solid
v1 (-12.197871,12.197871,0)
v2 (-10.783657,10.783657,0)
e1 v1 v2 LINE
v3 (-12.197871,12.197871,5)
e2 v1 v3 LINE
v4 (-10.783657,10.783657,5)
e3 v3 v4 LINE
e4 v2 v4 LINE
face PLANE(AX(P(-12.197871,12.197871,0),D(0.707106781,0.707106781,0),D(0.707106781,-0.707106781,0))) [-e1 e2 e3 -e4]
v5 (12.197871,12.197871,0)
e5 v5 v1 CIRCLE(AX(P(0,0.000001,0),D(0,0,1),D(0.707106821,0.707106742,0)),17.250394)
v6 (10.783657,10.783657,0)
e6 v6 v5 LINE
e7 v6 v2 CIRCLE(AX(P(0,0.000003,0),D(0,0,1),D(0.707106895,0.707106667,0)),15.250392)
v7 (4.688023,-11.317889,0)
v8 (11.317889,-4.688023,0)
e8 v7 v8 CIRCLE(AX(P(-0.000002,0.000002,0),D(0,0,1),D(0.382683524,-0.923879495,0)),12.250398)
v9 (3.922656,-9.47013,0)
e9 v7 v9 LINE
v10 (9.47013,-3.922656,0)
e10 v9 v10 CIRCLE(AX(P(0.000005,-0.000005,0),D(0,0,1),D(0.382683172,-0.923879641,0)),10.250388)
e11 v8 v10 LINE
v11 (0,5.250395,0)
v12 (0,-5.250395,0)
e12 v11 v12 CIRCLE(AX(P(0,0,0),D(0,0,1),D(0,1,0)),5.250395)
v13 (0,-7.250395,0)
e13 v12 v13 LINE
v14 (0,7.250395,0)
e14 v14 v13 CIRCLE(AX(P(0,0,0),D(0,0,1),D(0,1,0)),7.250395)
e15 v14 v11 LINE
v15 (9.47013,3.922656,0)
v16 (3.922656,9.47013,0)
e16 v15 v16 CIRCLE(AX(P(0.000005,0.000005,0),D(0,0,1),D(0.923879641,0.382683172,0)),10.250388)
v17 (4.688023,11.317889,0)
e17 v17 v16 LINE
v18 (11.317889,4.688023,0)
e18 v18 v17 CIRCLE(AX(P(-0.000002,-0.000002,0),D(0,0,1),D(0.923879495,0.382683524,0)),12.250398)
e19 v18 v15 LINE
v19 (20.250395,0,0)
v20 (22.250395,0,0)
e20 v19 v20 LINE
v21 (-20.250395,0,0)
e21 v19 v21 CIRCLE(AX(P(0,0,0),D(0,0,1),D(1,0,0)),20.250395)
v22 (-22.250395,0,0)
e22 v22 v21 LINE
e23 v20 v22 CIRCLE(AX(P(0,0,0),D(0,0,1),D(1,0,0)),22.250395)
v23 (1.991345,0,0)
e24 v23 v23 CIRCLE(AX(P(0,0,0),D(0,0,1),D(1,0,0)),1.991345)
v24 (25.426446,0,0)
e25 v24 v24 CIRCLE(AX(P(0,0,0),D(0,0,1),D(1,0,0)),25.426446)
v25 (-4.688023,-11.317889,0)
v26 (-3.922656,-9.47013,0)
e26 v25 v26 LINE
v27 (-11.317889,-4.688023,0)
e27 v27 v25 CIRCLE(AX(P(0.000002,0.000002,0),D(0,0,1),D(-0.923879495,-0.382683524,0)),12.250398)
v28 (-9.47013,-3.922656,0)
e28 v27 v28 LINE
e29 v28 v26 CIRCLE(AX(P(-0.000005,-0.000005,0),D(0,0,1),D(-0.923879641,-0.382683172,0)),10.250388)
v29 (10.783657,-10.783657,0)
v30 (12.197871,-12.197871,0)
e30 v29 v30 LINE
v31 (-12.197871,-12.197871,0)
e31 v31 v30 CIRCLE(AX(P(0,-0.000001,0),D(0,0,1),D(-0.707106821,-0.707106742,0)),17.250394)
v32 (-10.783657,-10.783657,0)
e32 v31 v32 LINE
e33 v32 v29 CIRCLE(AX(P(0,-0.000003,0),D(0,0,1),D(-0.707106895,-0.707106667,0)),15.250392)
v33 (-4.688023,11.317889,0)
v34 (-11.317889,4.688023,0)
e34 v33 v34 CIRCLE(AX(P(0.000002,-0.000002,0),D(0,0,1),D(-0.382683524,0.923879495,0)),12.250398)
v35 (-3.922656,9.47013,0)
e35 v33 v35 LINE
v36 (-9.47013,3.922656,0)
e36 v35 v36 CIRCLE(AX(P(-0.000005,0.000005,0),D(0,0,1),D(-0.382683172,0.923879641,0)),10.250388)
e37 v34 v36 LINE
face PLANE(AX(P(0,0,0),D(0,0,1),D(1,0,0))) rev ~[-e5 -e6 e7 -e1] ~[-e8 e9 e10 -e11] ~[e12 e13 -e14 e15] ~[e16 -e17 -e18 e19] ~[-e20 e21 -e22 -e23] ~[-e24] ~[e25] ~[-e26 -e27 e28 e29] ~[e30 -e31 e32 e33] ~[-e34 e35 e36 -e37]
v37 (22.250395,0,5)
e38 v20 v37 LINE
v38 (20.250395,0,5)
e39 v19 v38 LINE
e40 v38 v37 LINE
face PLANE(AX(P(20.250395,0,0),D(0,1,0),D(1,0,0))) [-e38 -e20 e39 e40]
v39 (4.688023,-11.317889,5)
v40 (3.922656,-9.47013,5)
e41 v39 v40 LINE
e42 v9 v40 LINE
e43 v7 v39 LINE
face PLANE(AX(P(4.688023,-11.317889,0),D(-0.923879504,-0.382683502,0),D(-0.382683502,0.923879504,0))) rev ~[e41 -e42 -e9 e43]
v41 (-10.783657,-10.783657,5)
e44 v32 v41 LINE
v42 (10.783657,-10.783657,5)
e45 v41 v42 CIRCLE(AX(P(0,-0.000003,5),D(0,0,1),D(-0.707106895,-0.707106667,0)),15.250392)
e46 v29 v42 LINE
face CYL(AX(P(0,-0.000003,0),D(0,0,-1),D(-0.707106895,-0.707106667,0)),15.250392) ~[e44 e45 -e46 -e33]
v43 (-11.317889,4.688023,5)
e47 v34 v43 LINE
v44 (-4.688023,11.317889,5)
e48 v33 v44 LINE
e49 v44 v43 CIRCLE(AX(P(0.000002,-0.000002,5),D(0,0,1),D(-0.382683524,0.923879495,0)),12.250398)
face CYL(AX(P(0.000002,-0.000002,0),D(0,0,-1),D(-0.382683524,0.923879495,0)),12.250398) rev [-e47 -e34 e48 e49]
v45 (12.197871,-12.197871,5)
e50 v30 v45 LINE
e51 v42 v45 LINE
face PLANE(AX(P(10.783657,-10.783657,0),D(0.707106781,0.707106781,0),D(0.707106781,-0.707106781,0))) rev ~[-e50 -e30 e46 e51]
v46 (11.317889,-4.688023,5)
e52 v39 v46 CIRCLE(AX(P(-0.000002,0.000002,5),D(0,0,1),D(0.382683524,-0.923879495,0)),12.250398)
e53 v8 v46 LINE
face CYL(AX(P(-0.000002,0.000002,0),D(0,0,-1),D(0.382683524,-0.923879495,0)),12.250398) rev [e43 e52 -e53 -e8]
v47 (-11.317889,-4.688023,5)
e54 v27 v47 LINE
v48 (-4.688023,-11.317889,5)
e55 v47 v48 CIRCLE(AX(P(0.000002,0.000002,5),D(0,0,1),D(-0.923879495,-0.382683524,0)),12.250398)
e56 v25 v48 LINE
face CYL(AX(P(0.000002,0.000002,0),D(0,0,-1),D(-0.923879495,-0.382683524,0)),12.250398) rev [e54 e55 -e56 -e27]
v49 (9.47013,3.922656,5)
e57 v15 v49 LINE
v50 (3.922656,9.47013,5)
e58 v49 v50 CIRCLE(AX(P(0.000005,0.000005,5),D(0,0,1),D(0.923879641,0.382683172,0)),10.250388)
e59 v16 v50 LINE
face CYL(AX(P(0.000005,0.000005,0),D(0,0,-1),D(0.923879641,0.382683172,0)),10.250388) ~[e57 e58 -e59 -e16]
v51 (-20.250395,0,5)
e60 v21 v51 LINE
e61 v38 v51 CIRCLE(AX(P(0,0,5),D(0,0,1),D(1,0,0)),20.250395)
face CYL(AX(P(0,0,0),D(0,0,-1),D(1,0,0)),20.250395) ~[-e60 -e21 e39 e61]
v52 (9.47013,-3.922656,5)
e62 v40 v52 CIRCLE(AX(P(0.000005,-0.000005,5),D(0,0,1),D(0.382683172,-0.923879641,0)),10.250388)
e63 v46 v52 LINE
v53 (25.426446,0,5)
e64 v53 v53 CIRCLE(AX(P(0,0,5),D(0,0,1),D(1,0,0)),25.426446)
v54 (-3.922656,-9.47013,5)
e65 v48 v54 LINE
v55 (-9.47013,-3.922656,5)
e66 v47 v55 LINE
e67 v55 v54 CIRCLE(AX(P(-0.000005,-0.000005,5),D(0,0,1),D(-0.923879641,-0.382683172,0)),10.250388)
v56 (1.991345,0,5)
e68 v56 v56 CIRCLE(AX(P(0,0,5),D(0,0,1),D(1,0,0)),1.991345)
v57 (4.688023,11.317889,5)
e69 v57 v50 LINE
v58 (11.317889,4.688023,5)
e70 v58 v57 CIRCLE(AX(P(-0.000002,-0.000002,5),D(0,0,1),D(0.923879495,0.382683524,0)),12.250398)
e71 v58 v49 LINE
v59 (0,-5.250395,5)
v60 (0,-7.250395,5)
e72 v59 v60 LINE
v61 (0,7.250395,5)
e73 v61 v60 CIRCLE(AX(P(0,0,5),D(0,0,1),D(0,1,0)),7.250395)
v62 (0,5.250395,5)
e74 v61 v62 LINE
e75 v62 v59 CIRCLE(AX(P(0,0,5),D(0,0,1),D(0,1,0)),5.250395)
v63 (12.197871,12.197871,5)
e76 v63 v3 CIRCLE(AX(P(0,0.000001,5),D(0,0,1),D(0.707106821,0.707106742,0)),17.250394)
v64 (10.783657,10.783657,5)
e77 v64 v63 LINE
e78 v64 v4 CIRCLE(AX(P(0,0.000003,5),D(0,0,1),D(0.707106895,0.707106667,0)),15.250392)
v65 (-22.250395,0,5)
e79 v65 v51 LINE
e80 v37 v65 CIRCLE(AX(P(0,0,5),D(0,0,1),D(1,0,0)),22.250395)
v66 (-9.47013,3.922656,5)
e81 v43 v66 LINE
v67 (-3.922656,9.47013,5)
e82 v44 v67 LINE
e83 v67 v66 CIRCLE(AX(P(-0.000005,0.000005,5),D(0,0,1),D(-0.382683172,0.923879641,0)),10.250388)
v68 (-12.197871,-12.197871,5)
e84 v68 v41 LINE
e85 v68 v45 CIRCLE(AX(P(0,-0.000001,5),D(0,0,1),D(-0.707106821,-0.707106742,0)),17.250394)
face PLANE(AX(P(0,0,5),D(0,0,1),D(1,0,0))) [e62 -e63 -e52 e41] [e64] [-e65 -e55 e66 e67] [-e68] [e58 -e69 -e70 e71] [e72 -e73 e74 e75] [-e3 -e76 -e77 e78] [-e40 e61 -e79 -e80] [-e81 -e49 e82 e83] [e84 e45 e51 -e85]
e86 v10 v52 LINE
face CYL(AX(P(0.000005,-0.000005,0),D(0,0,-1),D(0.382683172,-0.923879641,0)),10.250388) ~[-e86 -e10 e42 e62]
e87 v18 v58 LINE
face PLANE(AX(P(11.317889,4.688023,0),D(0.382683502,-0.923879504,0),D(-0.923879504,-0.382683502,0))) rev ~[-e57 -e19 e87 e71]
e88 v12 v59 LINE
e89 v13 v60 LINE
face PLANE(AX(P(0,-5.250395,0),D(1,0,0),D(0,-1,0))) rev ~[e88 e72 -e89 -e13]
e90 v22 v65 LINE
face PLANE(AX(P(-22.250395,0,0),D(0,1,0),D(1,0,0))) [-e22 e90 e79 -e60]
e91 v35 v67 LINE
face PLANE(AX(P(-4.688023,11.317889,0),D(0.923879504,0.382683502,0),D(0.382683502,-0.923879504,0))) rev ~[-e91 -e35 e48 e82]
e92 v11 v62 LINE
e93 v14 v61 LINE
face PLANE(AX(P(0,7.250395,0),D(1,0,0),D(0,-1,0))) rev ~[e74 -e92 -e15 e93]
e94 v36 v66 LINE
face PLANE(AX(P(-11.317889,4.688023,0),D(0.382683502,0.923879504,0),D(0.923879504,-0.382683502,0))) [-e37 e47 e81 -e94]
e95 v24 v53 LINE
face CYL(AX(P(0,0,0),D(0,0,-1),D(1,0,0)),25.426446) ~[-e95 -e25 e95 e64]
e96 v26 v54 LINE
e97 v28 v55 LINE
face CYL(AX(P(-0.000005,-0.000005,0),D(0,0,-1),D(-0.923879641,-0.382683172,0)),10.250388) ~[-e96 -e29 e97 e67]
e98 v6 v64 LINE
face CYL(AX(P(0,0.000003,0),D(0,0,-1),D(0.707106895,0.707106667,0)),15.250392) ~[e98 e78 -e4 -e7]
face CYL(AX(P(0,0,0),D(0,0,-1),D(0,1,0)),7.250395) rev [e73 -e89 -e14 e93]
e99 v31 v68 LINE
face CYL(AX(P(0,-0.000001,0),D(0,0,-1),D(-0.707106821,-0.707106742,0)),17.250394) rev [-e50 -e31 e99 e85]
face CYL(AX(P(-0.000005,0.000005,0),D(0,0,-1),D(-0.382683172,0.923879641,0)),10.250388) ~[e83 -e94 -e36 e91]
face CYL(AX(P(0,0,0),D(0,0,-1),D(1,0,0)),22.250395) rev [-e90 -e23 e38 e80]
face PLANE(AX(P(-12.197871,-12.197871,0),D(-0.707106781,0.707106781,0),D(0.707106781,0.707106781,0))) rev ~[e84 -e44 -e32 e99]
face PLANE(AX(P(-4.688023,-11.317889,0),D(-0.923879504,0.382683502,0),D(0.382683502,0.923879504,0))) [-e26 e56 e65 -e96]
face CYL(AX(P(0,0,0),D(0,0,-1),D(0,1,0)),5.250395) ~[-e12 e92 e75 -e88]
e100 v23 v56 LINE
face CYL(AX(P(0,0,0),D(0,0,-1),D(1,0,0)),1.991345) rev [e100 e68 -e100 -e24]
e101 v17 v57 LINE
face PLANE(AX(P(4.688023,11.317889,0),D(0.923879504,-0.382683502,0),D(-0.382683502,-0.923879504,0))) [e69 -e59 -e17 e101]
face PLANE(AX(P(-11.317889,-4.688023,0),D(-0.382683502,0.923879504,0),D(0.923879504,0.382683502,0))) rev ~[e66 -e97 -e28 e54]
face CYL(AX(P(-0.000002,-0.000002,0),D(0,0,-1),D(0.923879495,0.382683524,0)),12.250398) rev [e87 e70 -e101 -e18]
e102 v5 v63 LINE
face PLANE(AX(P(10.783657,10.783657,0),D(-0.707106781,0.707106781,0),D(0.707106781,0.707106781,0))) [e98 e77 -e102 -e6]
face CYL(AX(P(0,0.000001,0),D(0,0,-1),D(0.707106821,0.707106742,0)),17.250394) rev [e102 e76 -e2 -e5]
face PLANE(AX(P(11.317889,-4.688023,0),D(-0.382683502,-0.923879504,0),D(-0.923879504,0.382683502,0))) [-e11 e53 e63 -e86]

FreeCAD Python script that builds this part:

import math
import FreeCAD as App
import Part
import Sketcher

V = App.Vector
Q = App.Units.Quantity

doc = App.newDocument("Part")
body = doc.addObject("PartDesign::Body", "Body")

sketch1 = body.newObject("Sketcher::SketchObject", "Sketch")
sketch1.AttachmentSupport = (doc.getObject("XY_Plane"), [""])
sketch1.MapMode = "FlatFace"
sketch1.addGeometry([
    Part.Circle(V(0, 0, 0), V(0, 0, 1), 25.4),
    Part.ArcOfCircle(Part.Circle(V(0, 0, 0), V(0, 0, 1), 15.3), math.radians(-135), math.radians(-45)),
    Part.LineSegment(V(10.8, -10.8, 0), V(12.2, -12.2, 0)),
    Part.ArcOfCircle(Part.Circle(V(0, 0, 0), V(0, 0, 1), 17.3), math.radians(-135), math.radians(-45)),
    Part.LineSegment(V(-12.2, -12.2, 0), V(-10.8, -10.8, 0)),
    Part.ArcOfCircle(Part.Circle(V(0, 0, 0), V(0, 0, 1), 12.3), math.radians(-157), math.radians(-113)),
    Part.LineSegment(V(-11.3, -4.7, 0), V(-9.5, -3.9, 0)),
    Part.ArcOfCircle(Part.Circle(V(0, 0, 0), V(0, 0, 1), 10.3), math.radians(-158), math.radians(-112)),
    Part.LineSegment(V(-3.9, -9.5, 0), V(-4.7, -11.3, 0)),
    Part.ArcOfCircle(Part.Circle(V(0, 0, 0), V(0, 0, 1), 7.3), math.radians(90), math.radians(270)),
    Part.LineSegment(V(0, 7.3, 0), V(0, 5.3, 0)),
    Part.ArcOfCircle(Part.Circle(V(0, 0, 0), V(0, 0, 1), 5.3), math.radians(90), math.radians(270)),
    Part.LineSegment(V(0, -5.3, 0), V(0, -7.3, 0)),
    Part.Circle(V(0, 0, 0), V(0, 0, 1), 2),
    Part.LineSegment(V(4.7, -11.3, 0), V(3.9, -9.5, 0)),
    Part.ArcOfCircle(Part.Circle(V(0, 0, 0), V(0, 0, 1), 10.3), math.radians(-68), math.radians(-22)),
    Part.LineSegment(V(9.5, -3.9, 0), V(11.3, -4.7, 0)),
    Part.ArcOfCircle(Part.Circle(V(0, 0, 0), V(0, 0, 1), 12.3), math.radians(-67), math.radians(-23)),
    Part.ArcOfCircle(Part.Circle(V(0, 0, 0), V(0, 0, 1), 12.3), math.radians(113), math.radians(157)),
    Part.LineSegment(V(-4.7, 11.3, 0), V(-3.9, 9.5, 0)),
    Part.ArcOfCircle(Part.Circle(V(0, 0, 0), V(0, 0, 1), 10.3), math.radians(112), math.radians(158)),
    Part.LineSegment(V(-9.5, 3.9, 0), V(-11.3, 4.7, 0)),
    Part.LineSegment(V(-20.3, 0, 0), V(-22.3, 0, 0)),
    Part.ArcOfCircle(Part.Circle(V(0, 0, 0), V(0, 0, 1), 22.3), math.radians(0), math.radians(180)),
    Part.LineSegment(V(22.3, 0, 0), V(20.3, 0, 0)),
    Part.ArcOfCircle(Part.Circle(V(0, 0, 0), V(0, 0, 1), 20.3), math.radians(0), math.radians(180)),
    Part.ArcOfCircle(Part.Circle(V(0, 0, 0), V(0, 0, 1), 17.3), math.radians(45), math.radians(135)),
    Part.LineSegment(V(12.2, 12.2, 0), V(10.8, 10.8, 0)),
    Part.ArcOfCircle(Part.Circle(V(0, 0, 0), V(0, 0, 1), 15.3), math.radians(45), math.radians(135)),
    Part.LineSegment(V(-10.8, 10.8, 0), V(-12.2, 12.2, 0)),
    Part.ArcOfCircle(Part.Circle(V(0, 0, 0), V(0, 0, 1), 12.3), math.radians(23), math.radians(67)),
    Part.LineSegment(V(11.3, 4.7, 0), V(9.5, 3.9, 0)),
    Part.ArcOfCircle(Part.Circle(V(0, 0, 0), V(0, 0, 1), 10.3), math.radians(22), math.radians(68)),
    Part.LineSegment(V(3.9, 9.5, 0), V(4.7, 11.3, 0)),
], False)
sketch1.addConstraint([
    Sketcher.Constraint("Coincident", 1, 2, 2, 1),
    Sketcher.Constraint("Coincident", 2, 2, 3, 2),
    Sketcher.Constraint("Coincident", 3, 1, 4, 1),
    Sketcher.Constraint("Coincident", 4, 2, 1, 1),
    Sketcher.Constraint("Coincident", 5, 1, 6, 1),
    Sketcher.Constraint("Coincident", 6, 2, 7, 1),
    Sketcher.Constraint("Coincident", 7, 2, 8, 1),
    Sketcher.Constraint("Coincident", 8, 2, 5, 2),
    Sketcher.Constraint("Coincident", 9, 1, 10, 1),
    Sketcher.Constraint("Coincident", 10, 2, 11, 1),
    Sketcher.Constraint("Coincident", 11, 2, 12, 1),
    Sketcher.Constraint("Coincident", 12, 2, 9, 2),
    Sketcher.Constraint("Coincident", 14, 2, 15, 1),
    Sketcher.Constraint("Coincident", 15, 2, 16, 1),
    Sketcher.Constraint("Coincident", 16, 2, 17, 2),
    Sketcher.Constraint("Coincident", 17, 1, 14, 1),
    Sketcher.Constraint("Coincident", 18, 1, 19, 1),
    Sketcher.Constraint("Coincident", 19, 2, 20, 1),
    Sketcher.Constraint("Coincident", 20, 2, 21, 1),
    Sketcher.Constraint("Coincident", 21, 2, 18, 2),
    Sketcher.Constraint("Coincident", 22, 2, 23, 2),
    Sketcher.Constraint("Coincident", 23, 1, 24, 1),
    Sketcher.Constraint("Coincident", 24, 2, 25, 1),
    Sketcher.Constraint("Coincident", 25, 2, 22, 1),
    Sketcher.Constraint("Coincident", 26, 1, 27, 1),
    Sketcher.Constraint("Coincident", 27, 2, 28, 1),
    Sketcher.Constraint("Coincident", 28, 2, 29, 1),
    Sketcher.Constraint("Coincident", 29, 2, 26, 2),
    Sketcher.Constraint("Coincident", 30, 1, 31, 1),
    Sketcher.Constraint("Coincident", 31, 2, 32, 1),
    Sketcher.Constraint("Coincident", 32, 2, 33, 1),
    Sketcher.Constraint("Coincident", 33, 2, 30, 2),
    Sketcher.Constraint("Vertical", 10),
    Sketcher.Constraint("Vertical", 12),
    Sketcher.Constraint("Horizontal", 22),
    Sketcher.Constraint("Horizontal", 24),
    Sketcher.Constraint("Coincident", 0, 3, -1, 1),
    Sketcher.Constraint("Coincident", 1, 3, -1, 1),
    Sketcher.Constraint("Coincident", 3, 3, -1, 1),
    Sketcher.Constraint("Coincident", 5, 3, -1, 1),
    Sketcher.Constraint("Coincident", 7, 3, -1, 1),
    Sketcher.Constraint("Coincident", 9, 3, -1, 1),
    Sketcher.Constraint("Coincident", 11, 3, -1, 1),
    Sketcher.Constraint("Coincident", 13, 3, -1, 1),
    Sketcher.Constraint("Coincident", 15, 3, -1, 1),
    Sketcher.Constraint("Coincident", 17, 3, -1, 1),
    Sketcher.Constraint("Coincident", 18, 3, -1, 1),
    Sketcher.Constraint("Coincident", 20, 3, -1, 1),
    Sketcher.Constraint("Coincident", 23, 3, -1, 1),
    Sketcher.Constraint("Coincident", 25, 3, -1, 1),
    Sketcher.Constraint("Coincident", 26, 3, -1, 1),
    Sketcher.Constraint("Coincident", 28, 3, -1, 1),
    Sketcher.Constraint("Coincident", 30, 3, -1, 1),
    Sketcher.Constraint("Coincident", 32, 3, -1, 1),
    Sketcher.Constraint("Equal", 7, 15),
    Sketcher.Constraint("Equal", 5, 17),
    Sketcher.Constraint("Equal", 17, 18),
    Sketcher.Constraint("Equal", 15, 20),
    Sketcher.Constraint("Equal", 3, 26),
    Sketcher.Constraint("Equal", 1, 28),
    Sketcher.Constraint("Equal", 18, 30),
    Sketcher.Constraint("Equal", 20, 32),
    Sketcher.Constraint("PointOnObject", 9, 1, -2),
    Sketcher.Constraint("PointOnObject", 11, 2, -2),
    Sketcher.Constraint("PointOnObject", 22, 2, -1),
    Sketcher.Constraint("PointOnObject", 23, 1, -1),
    Sketcher.Constraint("Perpendicular", 2, 4),
    Sketcher.Constraint("Perpendicular", 6, 14),
    Sketcher.Constraint("Perpendicular", 8, 16),
    Sketcher.Constraint("Parallel", 14, 19),
    Sketcher.Constraint("Parallel", 16, 21),
    Sketcher.Constraint("Parallel", 4, 27),
    Sketcher.Constraint("Perpendicular", 27, 29),
    Sketcher.Constraint("Perpendicular", 19, 31),
    Sketcher.Constraint("Perpendicular", 21, 33),
    Sketcher.Constraint("Horizontal", 2, 2, 3, 1),
    Sketcher.Constraint("Horizontal", 1, 2, 4, 2),
    Sketcher.Constraint("Horizontal", 7, 2, 14, 2),
    Sketcher.Constraint("Horizontal", 6, 2, 15, 2),
    Sketcher.Constraint("Horizontal", 5, 1, 16, 2),
    Sketcher.Constraint("Horizontal", 27, 2, 28, 2),
    Sketcher.Constraint("Horizontal", 21, 2, 30, 1),
    Sketcher.Constraint("Horizontal", 19, 2, 32, 2),
    Sketcher.Constraint("Vertical", 8, 2, 18, 1),
    Sketcher.Constraint("Vertical", 6, 2, 20, 2),
    Sketcher.Constraint("Vertical", 2, 2, 26, 1),
    Sketcher.Constraint("Equal", 24, 10),
    Sketcher.Constraint("Equal", 4, 6),
    Sketcher.Constraint("DistanceX", 22, 2, 22, 1, Q("2 mm")),
    Sketcher.Constraint("Distance", 2, Q("2.000001 mm")),
    Sketcher.Constraint("Angle", 6, Q("22.500004 deg")),
    Sketcher.Constraint("Diameter", 0, Q("50.852892 mm")),
    Sketcher.Constraint("Diameter", 13, Q("3.98269 mm")),
    Sketcher.Constraint("Radius", 1, Q("15.250392 mm")),
    Sketcher.Constraint("Radius", 7, Q("10.250388 mm")),
    Sketcher.Constraint("Radius", 9, Q("7.250395 mm")),
    Sketcher.Constraint("Radius", 23, Q("22.250395 mm")),
    Sketcher.Constraint("DistanceY", 4, 2, 6, 2, Q("6.861001 mm")),
    Sketcher.Constraint("DistanceX", 4, 2, 7, 2, Q("6.861001 mm")),
    Sketcher.Constraint("DistanceX", -1, 1, 2, 2, Q("12.197871 mm")),
])
pad1 = body.newObject("PartDesign::Pad", "Pad")
pad1.Profile = sketch1
pad1.Length = 5

doc.recompute()
